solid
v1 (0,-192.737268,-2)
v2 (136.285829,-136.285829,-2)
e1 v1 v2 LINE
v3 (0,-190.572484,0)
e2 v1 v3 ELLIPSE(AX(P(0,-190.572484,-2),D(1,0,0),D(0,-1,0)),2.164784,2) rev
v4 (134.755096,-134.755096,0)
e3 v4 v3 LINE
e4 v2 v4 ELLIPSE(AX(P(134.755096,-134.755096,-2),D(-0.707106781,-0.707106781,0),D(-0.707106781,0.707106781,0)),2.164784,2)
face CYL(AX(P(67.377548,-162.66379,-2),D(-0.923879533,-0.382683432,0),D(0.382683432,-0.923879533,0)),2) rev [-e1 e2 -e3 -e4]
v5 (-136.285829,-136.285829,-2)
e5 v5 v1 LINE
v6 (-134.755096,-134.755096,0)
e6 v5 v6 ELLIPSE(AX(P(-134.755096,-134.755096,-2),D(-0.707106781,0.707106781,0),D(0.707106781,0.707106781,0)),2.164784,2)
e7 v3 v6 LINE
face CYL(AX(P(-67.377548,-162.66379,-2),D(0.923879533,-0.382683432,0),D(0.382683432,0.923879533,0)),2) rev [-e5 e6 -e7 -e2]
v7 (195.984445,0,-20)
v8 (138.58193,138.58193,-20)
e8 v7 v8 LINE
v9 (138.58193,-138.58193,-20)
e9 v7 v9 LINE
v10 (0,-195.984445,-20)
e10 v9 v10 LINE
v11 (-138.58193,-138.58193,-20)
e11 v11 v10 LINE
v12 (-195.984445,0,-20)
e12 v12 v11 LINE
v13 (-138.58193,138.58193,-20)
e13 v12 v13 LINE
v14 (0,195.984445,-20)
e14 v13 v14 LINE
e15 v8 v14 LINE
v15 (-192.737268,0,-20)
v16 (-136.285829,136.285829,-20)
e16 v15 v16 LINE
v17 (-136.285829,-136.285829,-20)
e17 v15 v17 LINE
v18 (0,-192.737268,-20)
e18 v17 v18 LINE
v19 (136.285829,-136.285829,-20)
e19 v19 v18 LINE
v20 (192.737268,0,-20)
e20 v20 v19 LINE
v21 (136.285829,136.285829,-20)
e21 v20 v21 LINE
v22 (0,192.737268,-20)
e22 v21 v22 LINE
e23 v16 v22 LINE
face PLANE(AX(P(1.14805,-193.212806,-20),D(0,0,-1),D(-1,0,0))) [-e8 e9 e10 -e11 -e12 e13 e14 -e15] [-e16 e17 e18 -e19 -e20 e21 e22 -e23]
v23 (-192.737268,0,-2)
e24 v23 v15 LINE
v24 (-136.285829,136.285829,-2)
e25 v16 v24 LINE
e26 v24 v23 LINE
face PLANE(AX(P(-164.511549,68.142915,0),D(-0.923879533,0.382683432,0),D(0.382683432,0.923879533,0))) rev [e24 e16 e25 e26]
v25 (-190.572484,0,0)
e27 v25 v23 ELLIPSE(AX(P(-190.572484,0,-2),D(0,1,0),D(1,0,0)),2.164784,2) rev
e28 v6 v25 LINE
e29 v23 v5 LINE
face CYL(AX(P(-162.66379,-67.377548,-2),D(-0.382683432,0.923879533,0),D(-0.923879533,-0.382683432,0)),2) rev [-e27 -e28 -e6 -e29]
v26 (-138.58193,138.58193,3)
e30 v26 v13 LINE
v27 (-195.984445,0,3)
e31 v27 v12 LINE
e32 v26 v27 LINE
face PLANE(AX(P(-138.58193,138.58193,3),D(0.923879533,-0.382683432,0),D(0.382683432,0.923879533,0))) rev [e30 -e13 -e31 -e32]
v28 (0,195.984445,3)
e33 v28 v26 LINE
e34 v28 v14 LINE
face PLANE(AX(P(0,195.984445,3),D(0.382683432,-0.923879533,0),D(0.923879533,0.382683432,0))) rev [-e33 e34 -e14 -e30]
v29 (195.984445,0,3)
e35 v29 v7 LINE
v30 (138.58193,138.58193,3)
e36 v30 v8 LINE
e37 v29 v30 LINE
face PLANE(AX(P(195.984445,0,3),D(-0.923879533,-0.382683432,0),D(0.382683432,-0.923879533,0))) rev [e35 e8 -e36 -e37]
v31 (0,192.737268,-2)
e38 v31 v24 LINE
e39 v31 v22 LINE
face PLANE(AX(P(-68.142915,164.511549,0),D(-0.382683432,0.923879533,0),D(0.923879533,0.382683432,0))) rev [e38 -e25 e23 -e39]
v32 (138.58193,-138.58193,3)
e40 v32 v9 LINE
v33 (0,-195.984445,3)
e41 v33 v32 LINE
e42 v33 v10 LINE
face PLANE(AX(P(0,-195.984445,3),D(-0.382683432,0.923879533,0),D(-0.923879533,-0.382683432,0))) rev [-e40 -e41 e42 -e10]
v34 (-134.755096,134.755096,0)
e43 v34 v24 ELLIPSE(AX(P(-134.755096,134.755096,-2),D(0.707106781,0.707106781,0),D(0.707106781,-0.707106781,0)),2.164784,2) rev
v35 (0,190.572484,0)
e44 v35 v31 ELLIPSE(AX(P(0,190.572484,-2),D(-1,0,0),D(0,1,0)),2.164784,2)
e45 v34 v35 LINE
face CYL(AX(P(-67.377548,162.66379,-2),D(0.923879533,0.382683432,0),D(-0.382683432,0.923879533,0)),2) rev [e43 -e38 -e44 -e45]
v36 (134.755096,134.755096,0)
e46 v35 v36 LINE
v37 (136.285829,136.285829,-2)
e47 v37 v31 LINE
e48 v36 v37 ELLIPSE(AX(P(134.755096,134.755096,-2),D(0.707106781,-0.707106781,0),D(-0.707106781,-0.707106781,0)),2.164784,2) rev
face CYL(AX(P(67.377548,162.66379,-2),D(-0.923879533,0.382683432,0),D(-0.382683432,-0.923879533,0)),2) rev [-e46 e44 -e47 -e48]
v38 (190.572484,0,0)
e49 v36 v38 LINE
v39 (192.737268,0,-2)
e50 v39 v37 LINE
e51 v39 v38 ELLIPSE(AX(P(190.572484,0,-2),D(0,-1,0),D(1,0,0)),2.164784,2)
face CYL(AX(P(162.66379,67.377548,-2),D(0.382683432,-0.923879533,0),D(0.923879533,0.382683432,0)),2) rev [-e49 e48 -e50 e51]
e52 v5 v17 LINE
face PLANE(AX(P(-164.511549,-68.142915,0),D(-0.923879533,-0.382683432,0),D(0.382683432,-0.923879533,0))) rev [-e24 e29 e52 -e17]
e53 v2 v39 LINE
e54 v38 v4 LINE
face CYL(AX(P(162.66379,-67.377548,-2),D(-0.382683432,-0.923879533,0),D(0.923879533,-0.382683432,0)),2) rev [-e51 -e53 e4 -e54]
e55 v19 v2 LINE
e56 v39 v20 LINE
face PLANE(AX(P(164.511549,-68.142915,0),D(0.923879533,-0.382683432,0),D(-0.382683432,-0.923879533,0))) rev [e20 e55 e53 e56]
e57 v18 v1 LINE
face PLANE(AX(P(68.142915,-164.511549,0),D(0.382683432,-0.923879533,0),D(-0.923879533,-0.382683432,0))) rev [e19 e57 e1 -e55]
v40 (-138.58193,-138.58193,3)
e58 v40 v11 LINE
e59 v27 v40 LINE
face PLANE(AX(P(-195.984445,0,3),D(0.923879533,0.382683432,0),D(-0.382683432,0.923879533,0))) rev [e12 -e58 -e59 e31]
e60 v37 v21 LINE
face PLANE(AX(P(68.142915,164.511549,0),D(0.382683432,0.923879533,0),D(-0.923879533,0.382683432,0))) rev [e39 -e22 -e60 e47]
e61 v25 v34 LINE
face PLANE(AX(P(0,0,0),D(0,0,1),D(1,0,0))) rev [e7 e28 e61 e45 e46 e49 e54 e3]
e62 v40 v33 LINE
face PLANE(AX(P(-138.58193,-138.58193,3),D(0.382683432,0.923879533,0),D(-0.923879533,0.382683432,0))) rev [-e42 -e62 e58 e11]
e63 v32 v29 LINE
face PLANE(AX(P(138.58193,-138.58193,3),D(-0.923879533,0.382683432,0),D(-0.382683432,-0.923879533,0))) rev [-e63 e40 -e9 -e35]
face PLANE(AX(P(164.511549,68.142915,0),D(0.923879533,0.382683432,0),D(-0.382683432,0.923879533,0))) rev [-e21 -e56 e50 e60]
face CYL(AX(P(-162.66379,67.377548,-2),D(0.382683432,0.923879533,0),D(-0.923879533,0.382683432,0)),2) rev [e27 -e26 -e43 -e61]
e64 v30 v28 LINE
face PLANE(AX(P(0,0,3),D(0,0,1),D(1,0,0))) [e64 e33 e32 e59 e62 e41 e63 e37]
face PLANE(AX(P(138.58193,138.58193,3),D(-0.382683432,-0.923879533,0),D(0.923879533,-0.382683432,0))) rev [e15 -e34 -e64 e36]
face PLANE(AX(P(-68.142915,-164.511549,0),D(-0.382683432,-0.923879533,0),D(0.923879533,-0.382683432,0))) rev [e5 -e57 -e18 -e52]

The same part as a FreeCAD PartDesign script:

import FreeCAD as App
import Part
import Sketcher

V = App.Vector
Q = App.Units.Quantity


def edges_at(feature, points):
    """Names of the edges that pass closest to the given points."""
    edges = feature.Shape.Edges
    near = lambda p: min(range(len(edges)), key=lambda i: edges[i].distToShape(Part.Vertex(*p))[0])
    return sorted({f"Edge{near(p) + 1}" for p in points})

doc = App.newDocument("Part")
params = doc.addObject("Spreadsheet::Sheet", "Params")
for row, (alias, value) in enumerate([
    ("sketch1_length", "150 mm"),
    ("pad1_length", "3 mm"),
    ("sketch2_width", "150 mm"),
    ("sketch2_height", "20 mm"),
    ("pad2_length", "3 mm"),
    ("sketch3_width", "150 mm"),
    ("sketch3_height", "20 mm"),
    ("pad3_length", "3 mm"),
    ("sketch4_width", "23 mm"),
    ("sketch4_height", "150 mm"),
    ("pad4_length", "3 mm"),
    ("sketch5_width", "23 mm"),
    ("sketch5_height", "150 mm"),
    ("pad5_length", "3 mm"),
    ("sketch6_width", "23 mm"),
    ("sketch6_height", "150 mm"),
    ("pad6_length", "3 mm"),
    ("fillet_radius", "2 mm"),
], start=1):
    params.set(f"A{row}", alias)
    params.set(f"B{row}", "=" + value)
    params.setAlias(f"B{row}", alias)

body = doc.addObject("PartDesign::Body", "Body")

# Sketch on XY plane
sketch1 = doc.addObject("Sketcher::SketchObject", "Sketch")
body.addObject(sketch1)
sketch1.AttachmentSupport = (doc.XY_Plane, [""])
sketch1.MapMode = "FlatFace"
sketch1.addGeometry([
    Part.LineSegment(V(0, 196, 0), V(-139, 139, 0)),  # 0
    Part.LineSegment(V(-139, 139, 0), V(-196, 0, 0)),  # 1
    Part.LineSegment(V(-196, 0, 0), V(-139, -139, 0)),  # 2
    Part.LineSegment(V(-139, -139, 0), V(0, -196, 0)),  # 3
    Part.LineSegment(V(0, -196, 0), V(139, -139, 0)),  # 4
    Part.LineSegment(V(139, -139, 0), V(196, 0, 0)),  # 5
    Part.LineSegment(V(196, 0, 0), V(139, 139, 0)),  # 6
    Part.LineSegment(V(139, 139, 0), V(0, 196, 0)),  # 7
], False)
sketch1.addConstraint([
    Sketcher.Constraint("Coincident", 0, 2, 1, 1),
    Sketcher.Constraint("Coincident", 1, 2, 2, 1),
    Sketcher.Constraint("Coincident", 2, 2, 3, 1),
    Sketcher.Constraint("Coincident", 3, 2, 4, 1),
    Sketcher.Constraint("Coincident", 4, 2, 5, 1),
    Sketcher.Constraint("Coincident", 5, 2, 6, 1),
    Sketcher.Constraint("Coincident", 6, 2, 7, 1),
    Sketcher.Constraint("Coincident", 7, 2, 0, 1),
    Sketcher.Constraint("Symmetric", 0, 2, 4, 2, -1, 1),
    Sketcher.Constraint("Symmetric", 1, 2, 5, 2, -1, 1),
    Sketcher.Constraint("Symmetric", 2, 2, 6, 2, -1, 1),
    Sketcher.Constraint("Symmetric", 3, 2, 7, 2, -1, 1),
    Sketcher.Constraint("Symmetric", 2, 2, 4, 2, -2),
    Sketcher.Constraint("PointOnObject", 1, 2, -1),
    Sketcher.Constraint("PointOnObject", 3, 2, -2),
    Sketcher.Constraint("Perpendicular", 0, 2),
    Sketcher.Constraint("Equal", 0, 1),
    Sketcher.Constraint("Distance", 0, 150.0),
    Sketcher.Constraint("Angle", 0, Q("-157.5 deg")),
])
sketch1.setExpression("Constraints[17]", "Params.sketch1_length")
pad1 = doc.addObject("PartDesign::Pad", "Pad")
body.addObject(pad1)
pad1.Profile = sketch1
pad1.setExpression("Length", "Params.pad1_length")

# Sketch on an angled plane
sketch2 = doc.addObject("Sketcher::SketchObject", "Sketch001")
body.addObject(sketch2)
sketch2.Placement = App.Placement(V(-69.290965, -167.283187, 0), App.Rotation(V(0.923879533, -0.382683432, 0), V(0, 0, 1.000000001), V(-0.382683432, -0.923879533, 0), "ZXY"))
sketch2.addGeometry([
    Part.LineSegment(V(-75, 0, 0), V(-75, -20, 0)),
    Part.LineSegment(V(-75, -20, 0), V(75, -20, 0)),
    Part.LineSegment(V(75, -20, 0), V(75, 0, 0)),
    Part.LineSegment(V(75, 0, 0), V(-75, 0, 0)),
], False)
sketch2.addConstraint([
    Sketcher.Constraint("Coincident", 0, 2, 1, 1),
    Sketcher.Constraint("Coincident", 1, 2, 2, 1),
    Sketcher.Constraint("Coincident", 2, 2, 3, 1),
    Sketcher.Constraint("Coincident", 3, 2, 0, 1),
    Sketcher.Constraint("Vertical", 0),
    Sketcher.Constraint("Horizontal", 1),
    Sketcher.Constraint("Vertical", 2),
    Sketcher.Constraint("Horizontal", 3),
    Sketcher.Constraint("Symmetric", 2, 2, 3, 2, -1, 1),
    Sketcher.Constraint("DistanceX", 1, 1, 1, 2, 150.0),
    Sketcher.Constraint("DistanceY", 0, 2, 0, 1, 20.0),
])
sketch2.setExpression("Constraints[9]", "Params.sketch2_width")
sketch2.setExpression("Constraints[10]", "Params.sketch2_height")
pad2 = doc.addObject("PartDesign::Pad", "Pad001")
body.addObject(pad2)
pad2.Profile = sketch2
pad2.setExpression("Length", "Params.pad2_length")
pad2.Reversed = True
doc.recompute()

mirrored = doc.addObject("PartDesign::Mirrored", "Mirrored")
body.addObject(mirrored)
mirrored.Originals = [pad2]
mirrored.MirrorPlane = (doc.XZ_Plane, [""])
body.Tip = mirrored
doc.recompute()

mirrored2 = doc.addObject("PartDesign::Mirrored", "Mirrored001")
body.addObject(mirrored2)
mirrored2.Originals = [pad2]
mirrored2.MirrorPlane = (doc.YZ_Plane, [""])
body.Tip = mirrored2

# Sketch on an angled plane
sketch3 = doc.addObject("Sketcher::SketchObject", "Sketch002")
body.addObject(sketch3)
sketch3.Placement = App.Placement(V(69.290965, 167.283187, 0), App.Rotation(V(-0.923879533, 0.382683432, 0), V(0, 0, 1.000000001), V(0.382683432, 0.923879533, 0), "ZXY"))
sketch3.addGeometry([
    Part.LineSegment(V(-75, 0, 0), V(-75, -20, 0)),
    Part.LineSegment(V(-75, -20, 0), V(75, -20, 0)),
    Part.LineSegment(V(75, -20, 0), V(75, 0, 0)),
    Part.LineSegment(V(75, 0, 0), V(-75, 0, 0)),
], False)
sketch3.addConstraint([
    Sketcher.Constraint("Coincident", 0, 2, 1, 1),
    Sketcher.Constraint("Coincident", 1, 2, 2, 1),
    Sketcher.Constraint("Coincident", 2, 2, 3, 1),
    Sketcher.Constraint("Coincident", 3, 2, 0, 1),
    Sketcher.Constraint("Vertical", 0),
    Sketcher.Constraint("Horizontal", 1),
    Sketcher.Constraint("Vertical", 2),
    Sketcher.Constraint("Horizontal", 3),
    Sketcher.Constraint("Symmetric", 2, 2, 3, 2, -1, 1),
    Sketcher.Constraint("DistanceX", 1, 1, 1, 2, 150.0),
    Sketcher.Constraint("DistanceY", 0, 2, 0, 1, 20.0),
])
sketch3.setExpression("Constraints[9]", "Params.sketch3_width")
sketch3.setExpression("Constraints[10]", "Params.sketch3_height")
pad3 = doc.addObject("PartDesign::Pad", "Pad002")
body.addObject(pad3)
pad3.Profile = sketch3
pad3.setExpression("Length", "Params.pad3_length")
pad3.Reversed = True

# Sketch on an angled plane
sketch4 = doc.addObject("Sketcher::SketchObject", "Sketch003")
body.addObject(sketch4)
sketch4.Placement = App.Placement(V(-167.283187, -69.290965, 0), App.Rotation(V(0, 0, 1), V(-0.382683432, 0.923879533, 0), V(-0.923879533, -0.382683432, 0), "ZXY"))
sketch4.addGeometry([
    Part.LineSegment(V(-20, 75, 0), V(-20, -75, 0)),
    Part.LineSegment(V(-20, -75, 0), V(3, -75, 0)),
    Part.LineSegment(V(3, -75, 0), V(3, 75, 0)),
    Part.LineSegment(V(3, 75, 0), V(-20, 75, 0)),
], False)
sketch4.addConstraint([
    Sketcher.Constraint("Coincident", 0, 2, 1, 1),
    Sketcher.Constraint("Coincident", 1, 2, 2, 1),
    Sketcher.Constraint("Coincident", 2, 2, 3, 1),
    Sketcher.Constraint("Coincident", 3, 2, 0, 1),
    Sketcher.Constraint("Vertical", 0),
    Sketcher.Constraint("Horizontal", 1),
    Sketcher.Constraint("Vertical", 2),
    Sketcher.Constraint("Horizontal", 3),
    Sketcher.Constraint("DistanceX", 1, 1, 1, 2, 23.0),
    Sketcher.Constraint("DistanceY", 0, 2, 0, 1, 150.0),
    Sketcher.Constraint("DistanceX", 0, 2, -1, 1, 20.0),
    Sketcher.Constraint("DistanceY", 0, 2, -1, 1, 75.0),
])
sketch4.setExpression("Constraints[8]", "Params.sketch4_width")
sketch4.setExpression("Constraints[9]", "Params.sketch4_height")
pad4 = doc.addObject("PartDesign::Pad", "Pad003")
body.addObject(pad4)
pad4.Profile = sketch4
pad4.setExpression("Length", "Params.pad4_length")
pad4.Reversed = True
doc.recompute()

mirrored3 = doc.addObject("PartDesign::Mirrored", "Mirrored002")
body.addObject(mirrored3)
mirrored3.Originals = [pad4]
mirrored3.MirrorPlane = (doc.XZ_Plane, [""])
body.Tip = mirrored3
doc.recompute()

mirrored4 = doc.addObject("PartDesign::Mirrored", "Mirrored003")
body.addObject(mirrored4)
mirrored4.Originals = [pad1]
mirrored4.MirrorPlane = (doc.YZ_Plane, [""])
body.Tip = mirrored4

# Sketch on an angled plane
sketch5 = doc.addObject("Sketcher::SketchObject", "Sketch004")
body.addObject(sketch5)
sketch5.Placement = App.Placement(V(167.283187, 69.290965, 0), App.Rotation(V(0, 0, 1), V(0.382683432, -0.923879533, 0), V(0.923879533, 0.382683432, 0), "ZXY"))
sketch5.addGeometry([
    Part.LineSegment(V(-20, 75, 0), V(-20, -75, 0)),
    Part.LineSegment(V(-20, -75, 0), V(3, -75, 0)),
    Part.LineSegment(V(3, -75, 0), V(3, 75, 0)),
    Part.LineSegment(V(3, 75, 0), V(-20, 75, 0)),
], False)
sketch5.addConstraint([
    Sketcher.Constraint("Coincident", 0, 2, 1, 1),
    Sketcher.Constraint("Coincident", 1, 2, 2, 1),
    Sketcher.Constraint("Coincident", 2, 2, 3, 1),
    Sketcher.Constraint("Coincident", 3, 2, 0, 1),
    Sketcher.Constraint("Vertical", 0),
    Sketcher.Constraint("Horizontal", 1),
    Sketcher.Constraint("Vertical", 2),
    Sketcher.Constraint("Horizontal", 3),
    Sketcher.Constraint("DistanceX", 1, 1, 1, 2, 23.0),
    Sketcher.Constraint("DistanceY", 0, 2, 0, 1, 150.0),
    Sketcher.Constraint("DistanceX", 0, 2, -1, 1, 20.0),
    Sketcher.Constraint("DistanceY", 0, 2, -1, 1, 75.0),
])
sketch5.setExpression("Constraints[8]", "Params.sketch5_width")
sketch5.setExpression("Constraints[9]", "Params.sketch5_height")
pad5 = doc.addObject("PartDesign::Pad", "Pad004")
body.addObject(pad5)
pad5.Profile = sketch5
pad5.setExpression("Length", "Params.pad5_length")
pad5.Reversed = True

# Sketch on an angled plane
sketch6 = doc.addObject("Sketcher::SketchObject", "Sketch005")
body.addObject(sketch6)
sketch6.Placement = App.Placement(V(167.283187, -69.290965, 0), App.Rotation(V(0, 0, 1), V(-0.382683432, -0.923879533, 0), V(0.923879533, -0.382683432, 0), "ZXY"))
sketch6.addGeometry([
    Part.LineSegment(V(-20, 75, 0), V(-20, -75, 0)),
    Part.LineSegment(V(-20, -75, 0), V(3, -75, 0)),
    Part.LineSegment(V(3, -75, 0), V(3, 75, 0)),
    Part.LineSegment(V(3, 75, 0), V(-20, 75, 0)),
], False)
sketch6.addConstraint([
    Sketcher.Constraint("Coincident", 0, 2, 1, 1),
    Sketcher.Constraint("Coincident", 1, 2, 2, 1),
    Sketcher.Constraint("Coincident", 2, 2, 3, 1),
    Sketcher.Constraint("Coincident", 3, 2, 0, 1),
    Sketcher.Constraint("Vertical", 0),
    Sketcher.Constraint("Horizontal", 1),
    Sketcher.Constraint("Vertical", 2),
    Sketcher.Constraint("Horizontal", 3),
    Sketcher.Constraint("DistanceX", 1, 1, 1, 2, 23.0),
    Sketcher.Constraint("DistanceY", 0, 2, 0, 1, 150.0),
    Sketcher.Constraint("DistanceX", 0, 2, -1, 1, 20.0),
    Sketcher.Constraint("DistanceY", 0, 2, -1, 1, 75.0),
])
sketch6.setExpression("Constraints[8]", "Params.sketch6_width")
sketch6.setExpression("Constraints[9]", "Params.sketch6_height")
pad6 = doc.addObject("PartDesign::Pad", "Pad005")
body.addObject(pad6)
pad6.Profile = sketch6
pad6.setExpression("Length", "Params.pad6_length")
pad6.Reversed = True
doc.recompute()

fillet = doc.addObject("PartDesign::Fillet", "Fillet")
body.addObject(fillet)
fillet.Base = (pad6, edges_at(pad6, [
    (-164.512, -68.143, 0),
    (-164.512, 68.143, 0),
    (164.512, 68.143, 0),
    (164.512, -68.143, 0),
    (-68.143, 164.512, 0),
    (68.143, 164.512, 0),
    (-68.143, -164.512, 0),
    (68.143, -164.512, 0),
]))
fillet.setExpression("Radius", "Params.fillet_radius")

doc.recompute()
